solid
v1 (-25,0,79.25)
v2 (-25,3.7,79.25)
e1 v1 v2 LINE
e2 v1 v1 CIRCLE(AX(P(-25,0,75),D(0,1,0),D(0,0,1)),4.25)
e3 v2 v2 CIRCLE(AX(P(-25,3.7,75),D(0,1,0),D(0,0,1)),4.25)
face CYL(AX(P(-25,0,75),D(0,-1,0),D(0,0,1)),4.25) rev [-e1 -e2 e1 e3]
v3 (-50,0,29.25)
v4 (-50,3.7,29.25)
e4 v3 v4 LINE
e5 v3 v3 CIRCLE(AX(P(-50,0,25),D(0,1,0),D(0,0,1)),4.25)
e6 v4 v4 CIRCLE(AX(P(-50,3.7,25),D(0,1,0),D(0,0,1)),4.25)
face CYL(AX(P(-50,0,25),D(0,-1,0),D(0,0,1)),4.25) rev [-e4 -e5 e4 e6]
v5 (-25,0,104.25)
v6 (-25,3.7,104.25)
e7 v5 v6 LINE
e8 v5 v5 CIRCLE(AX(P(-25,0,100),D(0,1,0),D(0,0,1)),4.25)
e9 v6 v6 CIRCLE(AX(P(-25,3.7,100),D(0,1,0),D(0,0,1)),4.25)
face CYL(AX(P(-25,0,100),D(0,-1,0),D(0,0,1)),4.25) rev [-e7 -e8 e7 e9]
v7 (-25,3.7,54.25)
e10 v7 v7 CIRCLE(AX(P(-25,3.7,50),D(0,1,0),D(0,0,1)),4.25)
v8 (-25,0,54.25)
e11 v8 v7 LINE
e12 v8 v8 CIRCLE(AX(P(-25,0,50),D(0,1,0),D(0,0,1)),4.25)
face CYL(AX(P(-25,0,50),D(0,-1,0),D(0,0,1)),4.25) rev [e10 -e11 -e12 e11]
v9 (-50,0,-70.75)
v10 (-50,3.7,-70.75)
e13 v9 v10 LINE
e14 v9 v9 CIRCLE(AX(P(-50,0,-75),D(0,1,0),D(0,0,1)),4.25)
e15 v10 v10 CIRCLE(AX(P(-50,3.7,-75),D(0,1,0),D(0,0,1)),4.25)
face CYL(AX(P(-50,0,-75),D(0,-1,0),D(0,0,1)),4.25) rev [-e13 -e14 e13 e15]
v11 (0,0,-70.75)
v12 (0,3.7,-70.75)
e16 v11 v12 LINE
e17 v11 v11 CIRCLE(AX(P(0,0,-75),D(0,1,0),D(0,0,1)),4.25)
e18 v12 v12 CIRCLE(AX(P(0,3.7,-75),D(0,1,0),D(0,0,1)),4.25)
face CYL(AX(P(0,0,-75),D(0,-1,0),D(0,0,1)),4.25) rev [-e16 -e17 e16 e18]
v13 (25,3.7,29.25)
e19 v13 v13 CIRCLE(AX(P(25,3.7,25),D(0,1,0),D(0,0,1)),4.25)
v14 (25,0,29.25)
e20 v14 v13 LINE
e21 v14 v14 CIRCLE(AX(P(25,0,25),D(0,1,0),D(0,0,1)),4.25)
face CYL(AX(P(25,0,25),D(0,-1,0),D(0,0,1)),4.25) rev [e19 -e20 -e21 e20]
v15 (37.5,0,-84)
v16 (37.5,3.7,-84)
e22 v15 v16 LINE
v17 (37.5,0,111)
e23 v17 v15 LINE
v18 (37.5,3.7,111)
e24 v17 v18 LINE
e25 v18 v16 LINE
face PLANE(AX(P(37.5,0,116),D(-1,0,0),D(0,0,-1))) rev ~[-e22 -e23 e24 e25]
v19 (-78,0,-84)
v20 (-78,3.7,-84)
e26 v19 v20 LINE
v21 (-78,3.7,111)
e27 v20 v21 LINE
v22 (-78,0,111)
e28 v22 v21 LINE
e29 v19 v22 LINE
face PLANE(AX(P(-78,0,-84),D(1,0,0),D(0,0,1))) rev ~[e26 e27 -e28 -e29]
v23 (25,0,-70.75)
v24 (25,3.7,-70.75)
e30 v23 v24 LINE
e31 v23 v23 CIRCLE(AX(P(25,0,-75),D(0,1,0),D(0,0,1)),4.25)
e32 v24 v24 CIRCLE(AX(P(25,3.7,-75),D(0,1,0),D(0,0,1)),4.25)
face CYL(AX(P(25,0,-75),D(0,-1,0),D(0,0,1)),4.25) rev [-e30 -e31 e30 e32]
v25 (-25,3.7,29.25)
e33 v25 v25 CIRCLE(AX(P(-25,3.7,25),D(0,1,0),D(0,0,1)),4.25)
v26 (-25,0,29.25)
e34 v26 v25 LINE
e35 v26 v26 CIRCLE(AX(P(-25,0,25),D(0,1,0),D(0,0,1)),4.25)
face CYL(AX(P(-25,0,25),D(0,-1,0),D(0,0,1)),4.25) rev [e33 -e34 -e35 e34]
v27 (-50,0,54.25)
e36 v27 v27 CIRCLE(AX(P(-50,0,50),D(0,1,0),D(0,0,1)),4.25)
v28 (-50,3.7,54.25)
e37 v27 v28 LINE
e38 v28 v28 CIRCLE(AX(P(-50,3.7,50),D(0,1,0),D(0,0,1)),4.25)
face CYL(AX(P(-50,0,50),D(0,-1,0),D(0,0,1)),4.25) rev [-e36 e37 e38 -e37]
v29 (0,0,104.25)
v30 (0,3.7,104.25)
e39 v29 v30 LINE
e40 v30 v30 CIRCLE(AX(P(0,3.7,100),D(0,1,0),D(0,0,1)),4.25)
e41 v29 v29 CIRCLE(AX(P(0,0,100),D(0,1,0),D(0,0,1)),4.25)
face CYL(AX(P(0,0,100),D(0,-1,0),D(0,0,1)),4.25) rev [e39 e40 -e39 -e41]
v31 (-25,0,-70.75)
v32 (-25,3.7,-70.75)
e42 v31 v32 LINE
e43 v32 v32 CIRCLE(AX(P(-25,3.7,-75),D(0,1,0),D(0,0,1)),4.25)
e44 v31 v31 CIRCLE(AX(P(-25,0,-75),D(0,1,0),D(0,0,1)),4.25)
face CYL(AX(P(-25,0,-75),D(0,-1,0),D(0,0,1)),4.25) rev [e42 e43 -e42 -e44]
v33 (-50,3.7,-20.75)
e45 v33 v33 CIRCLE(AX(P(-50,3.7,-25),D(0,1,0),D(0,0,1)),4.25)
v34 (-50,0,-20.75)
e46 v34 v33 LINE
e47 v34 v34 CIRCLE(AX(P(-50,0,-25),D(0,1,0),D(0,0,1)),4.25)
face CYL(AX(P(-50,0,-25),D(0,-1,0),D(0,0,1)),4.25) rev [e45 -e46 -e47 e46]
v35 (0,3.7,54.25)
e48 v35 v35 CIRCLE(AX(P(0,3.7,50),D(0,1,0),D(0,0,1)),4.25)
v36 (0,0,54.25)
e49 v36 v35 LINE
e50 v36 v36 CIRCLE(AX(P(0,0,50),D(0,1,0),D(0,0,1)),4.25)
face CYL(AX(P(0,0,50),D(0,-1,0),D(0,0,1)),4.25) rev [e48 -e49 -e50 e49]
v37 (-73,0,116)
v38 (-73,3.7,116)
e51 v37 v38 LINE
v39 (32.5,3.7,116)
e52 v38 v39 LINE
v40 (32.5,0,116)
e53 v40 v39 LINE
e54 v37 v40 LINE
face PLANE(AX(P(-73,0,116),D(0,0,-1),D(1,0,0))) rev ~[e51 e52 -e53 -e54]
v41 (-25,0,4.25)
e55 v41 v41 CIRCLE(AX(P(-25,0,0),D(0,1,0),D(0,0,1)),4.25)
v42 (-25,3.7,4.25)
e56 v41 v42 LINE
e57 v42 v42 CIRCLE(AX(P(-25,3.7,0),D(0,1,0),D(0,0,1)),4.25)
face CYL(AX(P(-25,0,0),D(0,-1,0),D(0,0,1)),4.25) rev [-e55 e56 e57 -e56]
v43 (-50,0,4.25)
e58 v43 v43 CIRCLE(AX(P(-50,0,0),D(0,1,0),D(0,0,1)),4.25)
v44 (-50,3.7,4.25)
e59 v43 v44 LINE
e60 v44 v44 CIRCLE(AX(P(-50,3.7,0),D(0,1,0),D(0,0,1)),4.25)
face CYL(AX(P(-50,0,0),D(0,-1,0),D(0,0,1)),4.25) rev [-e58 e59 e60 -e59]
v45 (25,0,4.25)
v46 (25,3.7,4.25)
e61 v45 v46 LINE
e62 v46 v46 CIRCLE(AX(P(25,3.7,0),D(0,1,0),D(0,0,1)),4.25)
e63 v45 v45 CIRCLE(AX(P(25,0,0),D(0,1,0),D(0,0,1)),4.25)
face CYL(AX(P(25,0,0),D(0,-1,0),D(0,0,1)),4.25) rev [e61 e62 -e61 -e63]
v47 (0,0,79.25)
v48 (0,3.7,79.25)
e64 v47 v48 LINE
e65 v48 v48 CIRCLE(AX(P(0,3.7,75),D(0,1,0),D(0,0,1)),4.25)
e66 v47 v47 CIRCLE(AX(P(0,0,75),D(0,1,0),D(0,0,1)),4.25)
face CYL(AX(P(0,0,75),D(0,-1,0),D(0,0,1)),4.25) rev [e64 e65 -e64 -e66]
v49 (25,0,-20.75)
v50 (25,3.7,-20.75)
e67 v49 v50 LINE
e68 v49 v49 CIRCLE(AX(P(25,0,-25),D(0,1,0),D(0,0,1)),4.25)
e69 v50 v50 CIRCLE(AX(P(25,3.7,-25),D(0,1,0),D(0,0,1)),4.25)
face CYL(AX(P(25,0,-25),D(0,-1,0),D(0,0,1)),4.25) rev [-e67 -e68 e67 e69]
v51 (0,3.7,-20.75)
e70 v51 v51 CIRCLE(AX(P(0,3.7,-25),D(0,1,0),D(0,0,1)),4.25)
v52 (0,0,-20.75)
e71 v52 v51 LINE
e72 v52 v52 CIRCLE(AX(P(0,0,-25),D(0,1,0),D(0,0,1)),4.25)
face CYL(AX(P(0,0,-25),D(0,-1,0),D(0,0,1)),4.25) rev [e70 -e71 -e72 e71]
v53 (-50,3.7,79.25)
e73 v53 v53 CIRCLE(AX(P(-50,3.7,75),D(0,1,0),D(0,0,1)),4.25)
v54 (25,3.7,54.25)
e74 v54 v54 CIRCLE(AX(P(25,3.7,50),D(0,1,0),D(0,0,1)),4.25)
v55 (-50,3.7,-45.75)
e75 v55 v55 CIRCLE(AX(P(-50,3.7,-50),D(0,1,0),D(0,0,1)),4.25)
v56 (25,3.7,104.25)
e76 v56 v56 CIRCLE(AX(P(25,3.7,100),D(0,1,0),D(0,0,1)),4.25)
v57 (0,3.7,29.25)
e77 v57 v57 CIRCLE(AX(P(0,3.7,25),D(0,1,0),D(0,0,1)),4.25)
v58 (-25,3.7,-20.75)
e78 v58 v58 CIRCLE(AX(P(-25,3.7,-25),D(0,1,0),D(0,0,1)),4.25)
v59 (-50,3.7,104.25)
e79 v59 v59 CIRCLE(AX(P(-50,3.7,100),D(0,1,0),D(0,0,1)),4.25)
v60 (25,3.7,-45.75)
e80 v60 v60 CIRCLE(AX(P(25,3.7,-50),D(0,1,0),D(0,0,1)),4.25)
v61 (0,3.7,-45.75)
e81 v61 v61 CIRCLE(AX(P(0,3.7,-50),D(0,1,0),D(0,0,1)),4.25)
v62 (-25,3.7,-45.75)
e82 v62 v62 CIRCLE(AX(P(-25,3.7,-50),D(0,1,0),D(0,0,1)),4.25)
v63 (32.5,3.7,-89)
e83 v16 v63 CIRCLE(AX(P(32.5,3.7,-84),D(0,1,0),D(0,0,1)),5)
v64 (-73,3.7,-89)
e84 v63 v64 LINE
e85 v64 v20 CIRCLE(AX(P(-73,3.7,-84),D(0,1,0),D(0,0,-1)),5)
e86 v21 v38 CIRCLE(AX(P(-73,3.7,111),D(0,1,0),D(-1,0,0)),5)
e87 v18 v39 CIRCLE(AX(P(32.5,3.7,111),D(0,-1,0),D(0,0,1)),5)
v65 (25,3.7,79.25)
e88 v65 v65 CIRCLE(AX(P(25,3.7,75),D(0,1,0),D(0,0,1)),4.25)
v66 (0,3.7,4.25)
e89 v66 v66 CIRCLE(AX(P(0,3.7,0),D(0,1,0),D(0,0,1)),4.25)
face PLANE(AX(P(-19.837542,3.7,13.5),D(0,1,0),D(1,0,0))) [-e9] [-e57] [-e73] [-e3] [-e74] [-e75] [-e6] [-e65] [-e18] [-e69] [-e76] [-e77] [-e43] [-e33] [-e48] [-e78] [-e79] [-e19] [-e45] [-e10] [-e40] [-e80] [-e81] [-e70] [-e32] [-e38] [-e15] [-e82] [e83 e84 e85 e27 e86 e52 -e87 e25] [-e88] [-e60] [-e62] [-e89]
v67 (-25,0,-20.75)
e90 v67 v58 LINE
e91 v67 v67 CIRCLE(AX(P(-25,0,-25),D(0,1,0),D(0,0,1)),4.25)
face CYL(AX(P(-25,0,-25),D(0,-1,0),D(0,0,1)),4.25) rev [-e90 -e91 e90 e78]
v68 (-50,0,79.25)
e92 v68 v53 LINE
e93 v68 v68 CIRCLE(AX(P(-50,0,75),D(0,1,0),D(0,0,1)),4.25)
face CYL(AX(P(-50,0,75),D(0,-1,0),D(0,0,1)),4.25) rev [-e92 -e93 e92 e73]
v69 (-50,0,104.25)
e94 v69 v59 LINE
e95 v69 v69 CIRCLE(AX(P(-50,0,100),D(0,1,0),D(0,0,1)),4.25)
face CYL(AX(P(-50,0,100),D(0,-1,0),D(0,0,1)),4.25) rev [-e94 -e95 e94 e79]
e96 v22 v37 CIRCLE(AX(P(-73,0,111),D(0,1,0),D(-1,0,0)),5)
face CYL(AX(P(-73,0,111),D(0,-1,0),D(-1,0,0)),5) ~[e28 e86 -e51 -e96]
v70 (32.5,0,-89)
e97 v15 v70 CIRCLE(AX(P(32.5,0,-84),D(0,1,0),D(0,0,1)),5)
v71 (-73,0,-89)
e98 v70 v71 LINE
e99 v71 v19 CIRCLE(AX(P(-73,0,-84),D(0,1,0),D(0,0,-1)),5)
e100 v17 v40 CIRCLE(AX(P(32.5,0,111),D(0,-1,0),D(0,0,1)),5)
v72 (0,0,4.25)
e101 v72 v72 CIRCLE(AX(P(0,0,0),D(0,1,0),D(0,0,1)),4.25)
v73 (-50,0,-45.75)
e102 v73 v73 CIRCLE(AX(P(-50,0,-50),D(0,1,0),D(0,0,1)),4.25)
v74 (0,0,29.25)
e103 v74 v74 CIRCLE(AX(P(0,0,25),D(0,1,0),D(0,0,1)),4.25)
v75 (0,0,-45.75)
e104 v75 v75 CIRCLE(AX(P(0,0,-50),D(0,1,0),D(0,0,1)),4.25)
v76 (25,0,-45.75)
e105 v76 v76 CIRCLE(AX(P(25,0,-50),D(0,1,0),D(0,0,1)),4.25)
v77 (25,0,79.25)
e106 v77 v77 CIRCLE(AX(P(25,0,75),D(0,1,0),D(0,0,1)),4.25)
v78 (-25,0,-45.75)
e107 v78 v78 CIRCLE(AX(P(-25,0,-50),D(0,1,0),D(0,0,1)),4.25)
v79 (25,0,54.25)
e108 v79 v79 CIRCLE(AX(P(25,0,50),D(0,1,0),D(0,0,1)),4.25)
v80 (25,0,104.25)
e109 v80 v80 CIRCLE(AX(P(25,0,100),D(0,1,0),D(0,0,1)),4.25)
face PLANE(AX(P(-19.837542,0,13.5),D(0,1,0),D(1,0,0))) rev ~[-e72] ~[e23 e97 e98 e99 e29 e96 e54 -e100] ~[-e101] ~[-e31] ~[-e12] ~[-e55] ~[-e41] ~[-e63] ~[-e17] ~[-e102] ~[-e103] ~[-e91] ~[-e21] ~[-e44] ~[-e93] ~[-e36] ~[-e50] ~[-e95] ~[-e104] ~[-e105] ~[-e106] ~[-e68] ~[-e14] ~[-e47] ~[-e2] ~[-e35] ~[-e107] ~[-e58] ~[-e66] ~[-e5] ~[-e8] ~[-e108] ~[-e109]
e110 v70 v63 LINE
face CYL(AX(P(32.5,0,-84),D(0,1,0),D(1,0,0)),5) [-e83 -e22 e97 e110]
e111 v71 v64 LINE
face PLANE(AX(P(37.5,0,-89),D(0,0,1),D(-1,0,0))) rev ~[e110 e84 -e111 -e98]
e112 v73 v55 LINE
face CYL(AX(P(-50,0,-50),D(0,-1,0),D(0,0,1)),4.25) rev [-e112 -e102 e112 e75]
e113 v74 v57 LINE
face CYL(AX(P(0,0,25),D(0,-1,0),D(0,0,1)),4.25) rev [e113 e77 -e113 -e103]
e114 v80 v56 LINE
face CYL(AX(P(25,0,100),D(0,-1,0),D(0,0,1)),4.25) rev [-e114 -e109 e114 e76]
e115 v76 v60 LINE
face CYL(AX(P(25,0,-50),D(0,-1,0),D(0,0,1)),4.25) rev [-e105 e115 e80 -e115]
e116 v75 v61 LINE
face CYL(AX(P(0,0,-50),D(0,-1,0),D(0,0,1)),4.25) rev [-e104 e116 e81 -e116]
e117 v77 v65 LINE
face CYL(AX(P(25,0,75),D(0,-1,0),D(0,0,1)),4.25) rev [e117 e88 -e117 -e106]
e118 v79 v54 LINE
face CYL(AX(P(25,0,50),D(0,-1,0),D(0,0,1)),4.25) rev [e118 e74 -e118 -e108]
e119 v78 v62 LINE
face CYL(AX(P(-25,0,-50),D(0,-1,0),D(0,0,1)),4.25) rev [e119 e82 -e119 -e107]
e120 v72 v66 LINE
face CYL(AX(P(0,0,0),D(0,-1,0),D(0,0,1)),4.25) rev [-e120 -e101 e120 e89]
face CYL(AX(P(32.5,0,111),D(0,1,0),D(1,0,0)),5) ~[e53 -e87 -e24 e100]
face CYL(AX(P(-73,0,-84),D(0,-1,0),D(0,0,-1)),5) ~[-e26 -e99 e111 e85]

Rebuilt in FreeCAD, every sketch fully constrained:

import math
import FreeCAD as App
import Part
import Sketcher


def edges_at(feature, points):
    """Names of the edges that pass closest to the given points."""
    edges = feature.Shape.Edges
    near = lambda p: min(range(len(edges)), key=lambda i: edges[i].distToShape(Part.Vertex(*p))[0])
    return sorted({f"Edge{near(p) + 1}" for p in points})

doc = App.newDocument("Part")
params = doc.addObject("Spreadsheet::Sheet", "Params")
for row, (alias, value) in enumerate([
    ("sketch1_radius", "5 mm"),
    ("sketch1_diameter", "8.5 mm"),
    ("sketch1_height", "205 mm"),
    ("sketch1_width", "110.5 mm"),
    ("pad1_length", "3.7 mm"),
    ("fillet_radius", "5 mm"),
], start=1):
    params.set(f"A{row}", alias)
    params.set(f"B{row}", "=" + value)
    params.setAlias(f"B{row}", alias)

body = doc.addObject("PartDesign::Body", "Body")

sketch1 = body.newObject("Sketcher::SketchObject", "Sketch")
sketch1.AttachmentSupport = (doc.getObject("XZ_Plane"), [""])
sketch1.MapMode = "FlatFace"
sketch1.addGeometry([
    Part.LineSegment(App.Vector(37.5, 116, 0), App.Vector(37.5, -89, 0)),
    Part.LineSegment(App.Vector(37.5, -89, 0), App.Vector(-73, -89, 0)),
    Part.ArcOfCircle(Part.Circle(App.Vector(-73, -84, 0), App.Vector(0, 0, 1), 5), math.radians(180), math.radians(270)),
    Part.LineSegment(App.Vector(-78, -84, 0), App.Vector(-78, 111, 0)),
    Part.ArcOfCircle(Part.Circle(App.Vector(-73, 111, 0), App.Vector(0, 0, 1), 5), math.radians(90), math.radians(180)),
    Part.LineSegment(App.Vector(-73, 116, 0), App.Vector(37.5, 116, 0)),
    Part.Circle(App.Vector(-50, 100, 0), App.Vector(0, 0, 1), 4.2),
    Part.Circle(App.Vector(-50, 75, 0), App.Vector(0, 0, 1), 4.2),
    Part.Circle(App.Vector(-25, 100, 0), App.Vector(0, 0, 1), 4.2),
    Part.Circle(App.Vector(-25, 75, 0), App.Vector(0, 0, 1), 4.2),
    Part.Circle(App.Vector(-50, 50, 0), App.Vector(0, 0, 1), 4.2),
    Part.Circle(App.Vector(-50, 25, 0), App.Vector(0, 0, 1), 4.2),
    Part.Circle(App.Vector(-25, 50, 0), App.Vector(0, 0, 1), 4.2),
    Part.Circle(App.Vector(-25, 25, 0), App.Vector(0, 0, 1), 4.2),
    Part.Circle(App.Vector(0, 100, 0), App.Vector(0, 0, 1), 4.2),
    Part.Circle(App.Vector(0, 75, 0), App.Vector(0, 0, 1), 4.2),
    Part.Circle(App.Vector(25, 100, 0), App.Vector(0, 0, 1), 4.2),
    Part.Circle(App.Vector(25, 75, 0), App.Vector(0, 0, 1), 4.2),
    Part.Circle(App.Vector(0, 50, 0), App.Vector(0, 0, 1), 4.2),
    Part.Circle(App.Vector(0, 25, 0), App.Vector(0, 0, 1), 4.2),
    Part.Circle(App.Vector(25, 50, 0), App.Vector(0, 0, 1), 4.2),
    Part.Circle(App.Vector(25, 25, 0), App.Vector(0, 0, 1), 4.2),
    Part.Circle(App.Vector(-50, 0, 0), App.Vector(0, 0, 1), 4.2),
    Part.Circle(App.Vector(-50, -25, 0), App.Vector(0, 0, 1), 4.2),
    Part.Circle(App.Vector(-25, 0, 0), App.Vector(0, 0, 1), 4.2),
    Part.Circle(App.Vector(-25, -25, 0), App.Vector(0, 0, 1), 4.2),
    Part.Circle(App.Vector(-50, -50, 0), App.Vector(0, 0, 1), 4.2),
    Part.Circle(App.Vector(-50, -75, 0), App.Vector(0, 0, 1), 4.2),
    Part.Circle(App.Vector(-25, -50, 0), App.Vector(0, 0, 1), 4.2),
    Part.Circle(App.Vector(-25, -75, 0), App.Vector(0, 0, 1), 4.2),
    Part.Circle(App.Vector(0, 0, 0), App.Vector(0, 0, 1), 4.2),
    Part.Circle(App.Vector(0, -25, 0), App.Vector(0, 0, 1), 4.2),
    Part.Circle(App.Vector(25, 0, 0), App.Vector(0, 0, 1), 4.2),
    Part.Circle(App.Vector(25, -25, 0), App.Vector(0, 0, 1), 4.2),
    Part.Circle(App.Vector(0, -50, 0), App.Vector(0, 0, 1), 4.2),
    Part.Circle(App.Vector(0, -75, 0), App.Vector(0, 0, 1), 4.2),
    Part.Circle(App.Vector(25, -50, 0), App.Vector(0, 0, 1), 4.2),
    Part.Circle(App.Vector(25, -75, 0), App.Vector(0, 0, 1), 4.2),
], False)
sketch1.addConstraint([
    Sketcher.Constraint("Coincident", 0, 2, 1, 1),
    Sketcher.Constraint("Tangent", 1, 2, 2, 2),
    Sketcher.Constraint("Tangent", 2, 1, 3, 1),
    Sketcher.Constraint("Tangent", 3, 2, 4, 2),
    Sketcher.Constraint("Tangent", 4, 1, 5, 1),
    Sketcher.Constraint("Coincident", 5, 2, 0, 1),
    Sketcher.Constraint("Vertical", 0),
    Sketcher.Constraint("Horizontal", 1),
    Sketcher.Constraint("Vertical", 3),
    Sketcher.Constraint("Horizontal", 5),
    Sketcher.Constraint("Coincident", 30, 3, -1, 1),
    Sketcher.Constraint("Equal", 2, 4),
    Sketcher.Constraint("Equal", 6, 7),
    Sketcher.Constraint("Equal", 7, 8),
    Sketcher.Constraint("Equal", 8, 9),
    Sketcher.Constraint("Equal", 9, 10),
    Sketcher.Constraint("Equal", 10, 11),
    Sketcher.Constraint("Equal", 11, 12),
    Sketcher.Constraint("Equal", 12, 13),
    Sketcher.Constraint("Equal", 13, 14),
    Sketcher.Constraint("Equal", 14, 15),
    Sketcher.Constraint("Equal", 15, 16),
    Sketcher.Constraint("Equal", 16, 17),
    Sketcher.Constraint("Equal", 17, 18),
    Sketcher.Constraint("Equal", 18, 19),
    Sketcher.Constraint("Equal", 19, 20),
    Sketcher.Constraint("Equal", 20, 21),
    Sketcher.Constraint("Equal", 21, 22),
    Sketcher.Constraint("Equal", 22, 23),
    Sketcher.Constraint("Equal", 23, 24),
    Sketcher.Constraint("Equal", 24, 25),
    Sketcher.Constraint("Equal", 25, 26),
    Sketcher.Constraint("Equal", 26, 27),
    Sketcher.Constraint("Equal", 27, 28),
    Sketcher.Constraint("Equal", 28, 29),
    Sketcher.Constraint("Equal", 29, 30),
    Sketcher.Constraint("Equal", 30, 31),
    Sketcher.Constraint("Equal", 31, 32),
    Sketcher.Constraint("Equal", 32, 33),
    Sketcher.Constraint("Equal", 33, 34),
    Sketcher.Constraint("Equal", 34, 35),
    Sketcher.Constraint("Equal", 35, 36),
    Sketcher.Constraint("Equal", 36, 37),
    Sketcher.Constraint("Symmetric", 21, 3, 25, 3, -1, 1),
    Sketcher.Constraint("Symmetric", 20, 3, 28, 3, -1, 1),
    Sketcher.Constraint("Symmetric", 17, 3, 29, 3, -1, 1),
    Sketcher.Constraint("Symmetric", 19, 3, 31, 3, -1, 1),
    Sketcher.Constraint("Symmetric", 24, 3, 32, 3, -1, 1),
    Sketcher.Constraint("Symmetric", 13, 3, 33, 3, -1, 1),
    Sketcher.Constraint("Symmetric", 18, 3, 34, 3, -1, 1),
    Sketcher.Constraint("Symmetric", 15, 3, 35, 3, -1, 1),
    Sketcher.Constraint("Symmetric", 12, 3, 36, 3, -1, 1),
    Sketcher.Constraint("Symmetric", 9, 3, 37, 3, -1, 1),
    Sketcher.Constraint("Symmetric", 8, 3, 16, 3, -2),
    Sketcher.Constraint("Symmetric", 9, 3, 17, 3, -2),
    Sketcher.Constraint("Symmetric", 12, 3, 20, 3, -2),
    Sketcher.Constraint("Symmetric", 13, 3, 21, 3, -2),
    Sketcher.Constraint("Symmetric", 11, 3, 23, 3, -1),
    Sketcher.Constraint("Symmetric", 10, 3, 26, 3, -1),
    Sketcher.Constraint("Symmetric", 7, 3, 27, 3, -1),
    Sketcher.Constraint("PointOnObject", 14, 3, -2),
    Sketcher.Constraint("PointOnObject", 15, 3, -2),
    Sketcher.Constraint("PointOnObject", 18, 3, -2),
    Sketcher.Constraint("PointOnObject", 19, 3, -2),
    Sketcher.Constraint("PointOnObject", 22, 3, -1),
    Sketcher.Constraint("PointOnObject", 24, 3, -1),
    Sketcher.Constraint("Horizontal", 6, 3, 8, 3),
    Sketcher.Constraint("Horizontal", 7, 3, 9, 3),
    Sketcher.Constraint("Horizontal", 10, 3, 12, 3),
    Sketcher.Constraint("Horizontal", 11, 3, 13, 3),
    Sketcher.Constraint("Horizontal", 8, 3, 14, 3),
    Sketcher.Constraint("Horizontal", 9, 3, 15, 3),
    Sketcher.Constraint("Horizontal", 12, 3, 18, 3),
    Sketcher.Constraint("Horizontal", 13, 3, 19, 3),
    Sketcher.Constraint("Vertical", 6, 3, 7, 3),
    Sketcher.Constraint("Vertical", 8, 3, 9, 3),
    Sketcher.Constraint("Vertical", 7, 3, 10, 3),
    Sketcher.Constraint("Vertical", 10, 3, 11, 3),
    Sketcher.Constraint("Vertical", 9, 3, 12, 3),
    Sketcher.Constraint("Vertical", 12, 3, 13, 3),
    Sketcher.Constraint("Vertical", 11, 3, 22, 3),
    Sketcher.Constraint("Vertical", 13, 3, 24, 3),
    Sketcher.Constraint("Radius", 2, 5.0),
    Sketcher.Constraint("Diameter", 6, 8.5),
    Sketcher.Constraint("DistanceY", 0, 2, 0, 1, 205.0),
    Sketcher.Constraint("DistanceX", 1, 2, 1, 1, 110.5),
    Sketcher.Constraint("DistanceX", 2, 3, -1, 1, 73.0),
    Sketcher.Constraint("DistanceY", 2, 3, -1, 1, 84.0),
    Sketcher.Constraint("DistanceX", 6, 3, -1, 1, 50.0),
    Sketcher.Constraint("DistanceY", -1, 1, 6, 3, 100.0),
    Sketcher.Constraint("DistanceY", -1, 1, 7, 3, 75.0),
    Sketcher.Constraint("DistanceX", 8, 3, -1, 1, 25.0),
    Sketcher.Constraint("DistanceY", -1, 1, 10, 3, 50.0),
    Sketcher.Constraint("DistanceY", -1, 1, 11, 3, 25.0),
])
sketch1.setExpression("Constraints[82]", "Params.sketch1_radius")
sketch1.setExpression("Constraints[83]", "Params.sketch1_diameter")
sketch1.setExpression("Constraints[84]", "Params.sketch1_height")
sketch1.setExpression("Constraints[85]", "Params.sketch1_width")
pad1 = body.newObject("PartDesign::Pad", "Pad")
pad1.Profile = sketch1
pad1.setExpression("Length", "Params.pad1_length")
pad1.Reversed = True
doc.recompute()

fillet = body.newObject("PartDesign::Fillet", "Fillet")
fillet.Base = (pad1, edges_at(pad1, [(37.5, 1.85, -89), (37.5, 1.85, 116)]))
fillet.setExpression("Radius", "Params.fillet_radius")

doc.recompute()
